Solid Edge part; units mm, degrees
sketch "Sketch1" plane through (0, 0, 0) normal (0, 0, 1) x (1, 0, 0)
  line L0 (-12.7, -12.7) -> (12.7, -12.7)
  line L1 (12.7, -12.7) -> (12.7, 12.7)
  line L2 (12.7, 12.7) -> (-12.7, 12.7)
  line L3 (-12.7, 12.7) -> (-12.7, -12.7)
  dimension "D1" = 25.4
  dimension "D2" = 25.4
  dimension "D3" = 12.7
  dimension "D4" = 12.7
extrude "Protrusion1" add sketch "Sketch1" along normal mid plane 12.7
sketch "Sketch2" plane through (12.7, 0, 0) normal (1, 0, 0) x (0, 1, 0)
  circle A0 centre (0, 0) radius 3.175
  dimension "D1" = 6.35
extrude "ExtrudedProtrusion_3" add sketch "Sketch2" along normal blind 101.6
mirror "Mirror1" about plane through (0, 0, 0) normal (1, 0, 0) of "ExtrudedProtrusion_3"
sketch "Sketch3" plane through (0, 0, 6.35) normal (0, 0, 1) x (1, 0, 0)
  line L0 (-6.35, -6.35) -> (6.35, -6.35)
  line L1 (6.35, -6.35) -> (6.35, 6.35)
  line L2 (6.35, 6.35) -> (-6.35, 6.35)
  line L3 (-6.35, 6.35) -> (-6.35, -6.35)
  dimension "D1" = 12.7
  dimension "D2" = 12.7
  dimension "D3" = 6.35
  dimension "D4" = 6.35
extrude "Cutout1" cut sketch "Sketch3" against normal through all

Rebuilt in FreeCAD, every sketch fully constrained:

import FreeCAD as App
import Part
import Sketcher

V = App.Vector
Q = App.Units.Quantity


def add_polygon(sketch, points):
    """Adds a closed chain of lines whose ends are joined by coincident constraints."""
    first, n = sketch.GeometryCount, len(points)
    for a, b in zip(points, points[1:] + points[:1]):
        sketch.addGeometry(Part.LineSegment(App.Vector(*a, 0), App.Vector(*b, 0)), False)
    for i in range(n):
        sketch.addConstraint(Sketcher.Constraint("Coincident", first + i, 2, first + (i + 1) % n, 1))

doc = App.newDocument("Part")
body = doc.addObject("PartDesign::Body", "Body")

# Sketch on XY plane
sketch1 = body.newObject("Sketcher::SketchObject", "Sketch")
sketch1.AttachmentSupport = (doc.getObject("XY_Plane"), [""])
sketch1.MapMode = "FlatFace"
add_polygon(sketch1, [(-13, 13), (-13, -13), (13, -13), (13, 13)])  # lines 0-3
sketch1.addConstraint(Sketcher.Constraint("Vertical", 0))
sketch1.addConstraint(Sketcher.Constraint("Horizontal", 1))
sketch1.addConstraint(Sketcher.Constraint("Vertical", 2))
sketch1.addConstraint(Sketcher.Constraint("Horizontal", 3))
sketch1.addConstraint(Sketcher.Constraint("Symmetric", 0, 2, 2, 2, -1, 1))
sketch1.addConstraint(Sketcher.Constraint("Equal", 3, 0))
sketch1.addConstraint(Sketcher.Constraint("DistanceX", 0, 2, -1, 1, Q("0.5 in")))
pad1 = body.newObject("PartDesign::Pad", "Pad")
pad1.Profile = sketch1
pad1.Length = Q("0.5 in")
pad1.Midplane = True

# Sketch on YZ plane
sketch2 = body.newObject("Sketcher::SketchObject", "Sketch001")
sketch2.AttachmentSupport = (doc.getObject("YZ_Plane"), [""])
sketch2.MapMode = "FlatFace"
sketch2.AttachmentOffset = App.Placement(V(0, 0, 0.5 * 25.4), App.Rotation())
sketch2.addGeometry(Part.Circle(V(0, 0, 0), V(0, 0, 1), 3.2), False)
sketch2.addConstraint(Sketcher.Constraint("Coincident", 0, 3, -1, 1))
sketch2.addConstraint(Sketcher.Constraint("Diameter", 0, Q("0.25 in")))
pad2 = body.newObject("PartDesign::Pad", "Pad001")
pad2.Profile = sketch2
pad2.Length = Q("4 in")
doc.recompute()

mirrored = body.newObject("PartDesign::Mirrored", "Mirrored")
mirrored.Originals = [pad2]
mirrored.MirrorPlane = (doc.getObject("YZ_Plane"), [""])
body.Tip = mirrored

# Sketch on XY plane
sketch3 = body.newObject("Sketcher::SketchObject", "Sketch002")
sketch3.AttachmentSupport = (doc.getObject("XY_Plane"), [""])
sketch3.MapMode = "FlatFace"
sketch3.AttachmentOffset = App.Placement(V(0, 0, 0.25 * 25.4), App.Rotation())
add_polygon(sketch3, [(-6, 6), (-6, -6), (6, -6), (6, 6)])  # lines 0-3
sketch3.addConstraint(Sketcher.Constraint("Vertical", 0))
sketch3.addConstraint(Sketcher.Constraint("Horizontal", 1))
sketch3.addConstraint(Sketcher.Constraint("Vertical", 2))
sketch3.addConstraint(Sketcher.Constraint("Horizontal", 3))
sketch3.addConstraint(Sketcher.Constraint("Symmetric", 0, 2, 2, 2, -1, 1))
sketch3.addConstraint(Sketcher.Constraint("Equal", 3, 0))
sketch3.addConstraint(Sketcher.Constraint("DistanceX", 0, 2, -1, 1, Q("0.25 in")))
pocket1 = body.newObject("PartDesign::Pocket", "Pocket")
pocket1.Profile = sketch3
pocket1.Type = "ThroughAll"

doc.recompute()
